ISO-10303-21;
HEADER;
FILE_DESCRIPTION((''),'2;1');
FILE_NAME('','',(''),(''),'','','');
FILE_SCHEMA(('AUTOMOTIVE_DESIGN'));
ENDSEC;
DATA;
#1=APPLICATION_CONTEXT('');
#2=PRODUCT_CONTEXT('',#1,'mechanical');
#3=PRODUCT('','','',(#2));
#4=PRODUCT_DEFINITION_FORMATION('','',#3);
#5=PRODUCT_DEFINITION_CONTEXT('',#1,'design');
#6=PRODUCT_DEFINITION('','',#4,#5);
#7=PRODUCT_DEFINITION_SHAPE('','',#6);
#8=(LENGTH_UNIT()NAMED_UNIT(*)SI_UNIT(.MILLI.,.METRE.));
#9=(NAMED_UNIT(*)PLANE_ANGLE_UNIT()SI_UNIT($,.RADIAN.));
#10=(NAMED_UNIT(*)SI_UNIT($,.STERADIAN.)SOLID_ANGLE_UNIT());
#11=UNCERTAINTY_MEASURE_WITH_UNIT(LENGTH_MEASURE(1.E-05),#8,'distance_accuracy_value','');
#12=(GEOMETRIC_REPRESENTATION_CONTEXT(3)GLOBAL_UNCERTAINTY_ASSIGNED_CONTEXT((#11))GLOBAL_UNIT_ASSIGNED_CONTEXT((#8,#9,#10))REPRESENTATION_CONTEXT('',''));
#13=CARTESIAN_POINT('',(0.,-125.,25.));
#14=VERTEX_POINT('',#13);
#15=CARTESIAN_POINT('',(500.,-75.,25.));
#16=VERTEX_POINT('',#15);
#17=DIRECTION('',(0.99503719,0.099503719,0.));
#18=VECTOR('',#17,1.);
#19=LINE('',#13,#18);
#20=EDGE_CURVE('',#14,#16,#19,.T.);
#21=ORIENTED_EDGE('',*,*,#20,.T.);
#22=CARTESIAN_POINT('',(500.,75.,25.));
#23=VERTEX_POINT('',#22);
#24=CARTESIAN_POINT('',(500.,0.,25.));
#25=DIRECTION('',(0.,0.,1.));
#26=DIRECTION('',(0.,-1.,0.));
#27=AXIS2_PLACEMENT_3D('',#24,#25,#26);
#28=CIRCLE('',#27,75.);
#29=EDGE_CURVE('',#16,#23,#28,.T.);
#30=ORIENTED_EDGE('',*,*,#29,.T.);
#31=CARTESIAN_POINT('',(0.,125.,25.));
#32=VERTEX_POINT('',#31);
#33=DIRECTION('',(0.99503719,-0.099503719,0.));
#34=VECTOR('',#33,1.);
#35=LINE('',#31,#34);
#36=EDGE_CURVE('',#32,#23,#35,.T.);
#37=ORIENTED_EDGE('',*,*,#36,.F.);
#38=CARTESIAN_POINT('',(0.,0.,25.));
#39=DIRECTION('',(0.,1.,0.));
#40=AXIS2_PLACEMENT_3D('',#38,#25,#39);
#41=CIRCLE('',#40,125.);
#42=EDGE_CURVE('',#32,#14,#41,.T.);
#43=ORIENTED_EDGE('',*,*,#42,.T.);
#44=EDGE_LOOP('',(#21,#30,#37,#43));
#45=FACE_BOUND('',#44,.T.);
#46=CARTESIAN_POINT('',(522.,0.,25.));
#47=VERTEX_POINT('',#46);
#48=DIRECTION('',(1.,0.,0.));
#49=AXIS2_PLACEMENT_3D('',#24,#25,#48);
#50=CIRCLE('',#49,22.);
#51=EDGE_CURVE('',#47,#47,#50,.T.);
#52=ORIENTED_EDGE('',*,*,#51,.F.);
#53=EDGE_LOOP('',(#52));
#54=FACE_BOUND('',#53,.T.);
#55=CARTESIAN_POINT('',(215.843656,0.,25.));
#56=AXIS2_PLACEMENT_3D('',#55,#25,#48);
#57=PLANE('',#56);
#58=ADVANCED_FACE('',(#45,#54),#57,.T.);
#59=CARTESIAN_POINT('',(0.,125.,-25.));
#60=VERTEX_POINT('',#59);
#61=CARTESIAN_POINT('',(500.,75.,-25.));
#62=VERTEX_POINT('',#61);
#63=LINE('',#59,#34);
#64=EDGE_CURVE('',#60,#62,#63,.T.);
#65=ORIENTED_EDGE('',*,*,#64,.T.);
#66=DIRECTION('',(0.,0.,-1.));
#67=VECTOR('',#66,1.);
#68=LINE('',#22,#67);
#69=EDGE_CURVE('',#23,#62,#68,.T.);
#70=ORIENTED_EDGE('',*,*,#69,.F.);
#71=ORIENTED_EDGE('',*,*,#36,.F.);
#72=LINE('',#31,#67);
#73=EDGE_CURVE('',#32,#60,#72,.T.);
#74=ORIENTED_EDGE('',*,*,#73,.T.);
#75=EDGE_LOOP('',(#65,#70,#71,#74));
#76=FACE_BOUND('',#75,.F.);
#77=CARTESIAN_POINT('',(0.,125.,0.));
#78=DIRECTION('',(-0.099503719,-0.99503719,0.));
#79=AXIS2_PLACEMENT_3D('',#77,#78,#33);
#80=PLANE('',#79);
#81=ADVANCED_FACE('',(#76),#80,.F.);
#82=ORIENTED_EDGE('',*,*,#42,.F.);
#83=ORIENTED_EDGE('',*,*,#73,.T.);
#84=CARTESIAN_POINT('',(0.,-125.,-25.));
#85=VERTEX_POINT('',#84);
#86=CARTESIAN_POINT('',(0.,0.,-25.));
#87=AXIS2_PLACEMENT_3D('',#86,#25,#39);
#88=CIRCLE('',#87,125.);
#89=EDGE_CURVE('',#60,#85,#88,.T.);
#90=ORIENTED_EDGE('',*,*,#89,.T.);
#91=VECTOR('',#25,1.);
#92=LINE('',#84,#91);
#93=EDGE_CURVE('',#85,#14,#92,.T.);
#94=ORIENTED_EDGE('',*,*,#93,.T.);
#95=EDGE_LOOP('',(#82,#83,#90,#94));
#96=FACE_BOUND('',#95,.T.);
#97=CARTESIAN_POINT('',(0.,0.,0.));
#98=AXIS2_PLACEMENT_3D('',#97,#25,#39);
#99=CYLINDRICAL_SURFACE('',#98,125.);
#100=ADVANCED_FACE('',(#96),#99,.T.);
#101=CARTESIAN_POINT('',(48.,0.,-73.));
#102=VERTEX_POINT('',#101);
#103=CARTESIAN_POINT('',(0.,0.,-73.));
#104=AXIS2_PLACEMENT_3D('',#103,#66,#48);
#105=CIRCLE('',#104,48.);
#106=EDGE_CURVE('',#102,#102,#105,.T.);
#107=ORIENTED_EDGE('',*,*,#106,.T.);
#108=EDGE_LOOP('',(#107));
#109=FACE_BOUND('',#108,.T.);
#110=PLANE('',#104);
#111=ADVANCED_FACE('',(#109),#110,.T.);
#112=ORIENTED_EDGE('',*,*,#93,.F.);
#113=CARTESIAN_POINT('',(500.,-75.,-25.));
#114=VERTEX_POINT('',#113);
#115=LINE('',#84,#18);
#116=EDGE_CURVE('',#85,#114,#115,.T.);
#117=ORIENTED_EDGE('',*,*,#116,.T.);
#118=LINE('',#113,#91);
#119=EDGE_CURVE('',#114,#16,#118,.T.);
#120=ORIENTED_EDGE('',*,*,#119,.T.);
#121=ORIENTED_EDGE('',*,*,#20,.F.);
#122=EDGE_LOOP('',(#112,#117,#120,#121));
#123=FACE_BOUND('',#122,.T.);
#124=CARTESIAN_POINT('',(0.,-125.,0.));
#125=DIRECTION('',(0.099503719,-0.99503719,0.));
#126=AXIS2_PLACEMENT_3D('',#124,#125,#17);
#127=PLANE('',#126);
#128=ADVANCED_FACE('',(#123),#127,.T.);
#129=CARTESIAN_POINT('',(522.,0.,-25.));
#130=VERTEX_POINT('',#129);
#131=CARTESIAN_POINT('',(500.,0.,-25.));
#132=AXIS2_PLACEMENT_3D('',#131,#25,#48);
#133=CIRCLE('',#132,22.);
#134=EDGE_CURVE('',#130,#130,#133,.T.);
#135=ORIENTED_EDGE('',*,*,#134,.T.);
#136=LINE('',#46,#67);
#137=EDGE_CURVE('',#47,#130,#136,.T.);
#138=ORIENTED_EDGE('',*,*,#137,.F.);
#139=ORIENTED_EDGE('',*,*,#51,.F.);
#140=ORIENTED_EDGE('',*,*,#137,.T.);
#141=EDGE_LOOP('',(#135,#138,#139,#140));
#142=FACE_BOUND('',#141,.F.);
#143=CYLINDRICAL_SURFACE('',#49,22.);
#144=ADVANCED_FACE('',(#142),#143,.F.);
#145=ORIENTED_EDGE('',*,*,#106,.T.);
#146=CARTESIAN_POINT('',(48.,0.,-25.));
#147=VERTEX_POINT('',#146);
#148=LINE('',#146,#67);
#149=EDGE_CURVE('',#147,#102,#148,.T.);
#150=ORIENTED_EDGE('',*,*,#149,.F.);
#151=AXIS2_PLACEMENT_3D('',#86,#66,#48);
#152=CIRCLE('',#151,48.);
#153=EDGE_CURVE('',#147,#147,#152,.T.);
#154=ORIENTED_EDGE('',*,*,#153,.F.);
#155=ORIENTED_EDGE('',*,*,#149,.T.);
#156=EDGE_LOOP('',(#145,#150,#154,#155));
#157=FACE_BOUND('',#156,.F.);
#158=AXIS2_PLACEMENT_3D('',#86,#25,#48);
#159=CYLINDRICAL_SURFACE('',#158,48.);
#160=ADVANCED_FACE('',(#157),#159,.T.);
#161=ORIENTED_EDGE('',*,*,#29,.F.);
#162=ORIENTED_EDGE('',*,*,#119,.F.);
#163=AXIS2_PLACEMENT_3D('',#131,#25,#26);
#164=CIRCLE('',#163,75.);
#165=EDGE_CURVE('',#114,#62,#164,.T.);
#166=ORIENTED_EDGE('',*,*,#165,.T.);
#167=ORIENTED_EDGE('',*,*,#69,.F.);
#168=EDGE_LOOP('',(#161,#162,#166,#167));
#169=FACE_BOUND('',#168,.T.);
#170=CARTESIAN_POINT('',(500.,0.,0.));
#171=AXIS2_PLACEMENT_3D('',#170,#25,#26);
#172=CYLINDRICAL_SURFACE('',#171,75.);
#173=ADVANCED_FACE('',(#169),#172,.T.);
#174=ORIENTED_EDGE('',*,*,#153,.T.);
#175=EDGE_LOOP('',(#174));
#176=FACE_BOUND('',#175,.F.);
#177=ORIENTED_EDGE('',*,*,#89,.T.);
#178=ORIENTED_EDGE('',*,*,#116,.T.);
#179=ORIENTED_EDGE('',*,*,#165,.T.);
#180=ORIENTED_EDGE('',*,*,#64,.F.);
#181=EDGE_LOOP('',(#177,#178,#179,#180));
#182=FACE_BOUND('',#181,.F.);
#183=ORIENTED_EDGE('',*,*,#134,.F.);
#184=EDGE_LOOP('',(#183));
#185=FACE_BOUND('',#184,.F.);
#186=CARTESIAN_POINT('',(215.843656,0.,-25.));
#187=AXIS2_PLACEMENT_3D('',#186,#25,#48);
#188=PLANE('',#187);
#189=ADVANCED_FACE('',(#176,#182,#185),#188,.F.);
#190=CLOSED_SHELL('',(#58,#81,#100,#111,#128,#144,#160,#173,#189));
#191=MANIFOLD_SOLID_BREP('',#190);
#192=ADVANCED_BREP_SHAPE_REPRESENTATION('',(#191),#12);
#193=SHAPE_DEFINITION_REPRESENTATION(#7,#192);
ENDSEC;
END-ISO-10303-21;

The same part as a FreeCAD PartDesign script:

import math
import FreeCAD as App
import Part
import Sketcher

V = App.Vector
Q = App.Units.Quantity

doc = App.newDocument("Part")
body = doc.addObject("PartDesign::Body", "Body")

sketch1 = body.newObject("Sketcher::SketchObject", "Sketch")
sketch1.AttachmentSupport = (doc.getObject("XY_Plane"), [""])
sketch1.MapMode = "FlatFace"
sketch1.addGeometry([
    Part.ArcOfCircle(Part.Circle(V(0, 0, 0), V(0, 0, 1), 125), math.radians(90), math.radians(270)),
    Part.LineSegment(V(0, -125, 0), V(500, -75, 0)),
    Part.ArcOfCircle(Part.Circle(V(500, 0, 0), V(0, 0, 1), 75), math.radians(-90), math.radians(90)),
    Part.LineSegment(V(500, 75, 0), V(0, 125, 0)),
], False)
sketch1.addConstraint([
    Sketcher.Constraint("Coincident", 0, 2, 1, 1),
    Sketcher.Constraint("Coincident", 1, 2, 2, 1),
    Sketcher.Constraint("Coincident", 2, 2, 3, 1),
    Sketcher.Constraint("Coincident", 3, 2, 0, 1),
    Sketcher.Constraint("Coincident", 0, 3, -1, 1),
    Sketcher.Constraint("Symmetric", 1, 2, 2, 2, -1),
    Sketcher.Constraint("PointOnObject", 0, 2, -2),
    Sketcher.Constraint("PointOnObject", 3, 2, -2),
    Sketcher.Constraint("Vertical", 2, 3, 1, 2),
    Sketcher.Constraint("Radius", 0, Q("125 mm")),
    Sketcher.Constraint("Radius", 2, Q("75 mm")),
    Sketcher.Constraint("DistanceX", -1, 1, 2, 3, Q("500 mm")),
])
pad1 = body.newObject("PartDesign::Pad", "Pad")
pad1.Profile = sketch1
pad1.Length = 50
pad1.Midplane = True

sketch2 = body.newObject("Sketcher::SketchObject", "Sketch001")
sketch2.AttachmentSupport = (doc.getObject("XY_Plane"), [""])
sketch2.MapMode = "FlatFace"
sketch2.AttachmentOffset = App.Placement(V(0, 0, -25), App.Rotation())
sketch2.addGeometry(Part.Circle(V(0, 0, 0), V(0, 0, 1), 48), False)
sketch2.addConstraint([
    Sketcher.Constraint("Coincident", 0, 3, -1, 1),
    Sketcher.Constraint("Diameter", 0, Q("96 mm")),
])
pad2 = body.newObject("PartDesign::Pad", "Pad001")
pad2.Profile = sketch2
pad2.Length = 48
pad2.Reversed = True

sketch3 = body.newObject("Sketcher::SketchObject", "Sketch002")
sketch3.AttachmentSupport = (doc.getObject("XY_Plane"), [""])
sketch3.MapMode = "FlatFace"
sketch3.AttachmentOffset = App.Placement(V(0, 0, 25), App.Rotation())
sketch3.addGeometry(Part.Circle(V(500, 0, 0), V(0, 0, 1), 22), False)
sketch3.addConstraint([
    Sketcher.Constraint("PointOnObject", 0, 3, -1),
    Sketcher.Constraint("Diameter", 0, Q("44 mm")),
    Sketcher.Constraint("DistanceX", -1, 1, 0, 3, Q("500 mm")),
])
pocket1 = body.newObject("PartDesign::Pocket", "Pocket")
pocket1.Profile = sketch3
pocket1.Length = 51

doc.recompute()
